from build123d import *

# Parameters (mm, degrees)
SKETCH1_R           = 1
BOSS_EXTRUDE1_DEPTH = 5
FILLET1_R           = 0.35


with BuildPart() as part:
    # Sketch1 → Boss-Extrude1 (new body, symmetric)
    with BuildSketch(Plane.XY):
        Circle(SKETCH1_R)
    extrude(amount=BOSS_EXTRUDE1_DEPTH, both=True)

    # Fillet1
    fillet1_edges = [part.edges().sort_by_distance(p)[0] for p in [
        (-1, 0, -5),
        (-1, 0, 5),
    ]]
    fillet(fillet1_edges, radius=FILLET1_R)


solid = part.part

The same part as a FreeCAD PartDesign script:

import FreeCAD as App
import Part
import Sketcher


def edges_at(feature, points):
    """Names of the edges that pass closest to the given points."""
    edges = feature.Shape.Edges
    near = lambda p: min(range(len(edges)), key=lambda i: edges[i].distToShape(Part.Vertex(*p))[0])
    return sorted({f"Edge{near(p) + 1}" for p in points})

doc = App.newDocument("Part")
params = doc.addObject("Spreadsheet::Sheet", "Params")
for row, (alias, value) in enumerate([
    ("sketch1_diameter", "2 mm"),
    ("pad1_length", "10 mm"),
    ("fillet_radius", "0.35 mm"),
], start=1):
    params.set(f"A{row}", alias)
    params.set(f"B{row}", "=" + value)
    params.setAlias(f"B{row}", alias)

body = doc.addObject("PartDesign::Body", "Body")

# Sketch on XY plane
sketch1 = body.newObject("Sketcher::SketchObject", "Sketch")
sketch1.AttachmentSupport = (doc.getObject("XY_Plane"), [""])
sketch1.MapMode = "FlatFace"
sketch1.addGeometry(Part.Circle(App.Vector(0, 0, 0), App.Vector(0, 0, 1), 1), False)
sketch1.addConstraint(Sketcher.Constraint("Coincident", 0, 3, -1, 1))
sketch1.addConstraint(Sketcher.Constraint("Diameter", 0, 2.0))
sketch1.setExpression("Constraints[1]", "Params.sketch1_diameter")
pad1 = body.newObject("PartDesign::Pad", "Pad")
pad1.Profile = sketch1
pad1.setExpression("Length", "Params.pad1_length")
pad1.Midplane = True
doc.recompute()

fillet = body.newObject("PartDesign::Fillet", "Fillet")
fillet.Base = (pad1, edges_at(pad1, [(-1, 0, -5), (-1, 0, 5)]))
fillet.setExpression("Radius", "Params.fillet_radius")

doc.recompute()
